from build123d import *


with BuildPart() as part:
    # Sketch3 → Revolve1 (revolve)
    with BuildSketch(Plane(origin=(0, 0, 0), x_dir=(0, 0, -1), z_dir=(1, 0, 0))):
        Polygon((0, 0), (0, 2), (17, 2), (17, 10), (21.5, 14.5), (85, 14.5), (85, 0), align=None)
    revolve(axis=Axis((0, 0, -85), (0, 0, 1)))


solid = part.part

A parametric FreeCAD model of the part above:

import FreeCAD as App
import Part
import Sketcher

V = App.Vector
Q = App.Units.Quantity

doc = App.newDocument("Part")
body = doc.addObject("PartDesign::Body", "Body")

sketch1 = body.newObject("Sketcher::SketchObject", "Sketch")
sketch1.AttachmentSupport = (doc.getObject("YZ_Plane"), [""])
sketch1.MapMode = "FlatFace"
sketch1.addGeometry([
    Part.LineSegment(V(2, 0, 0), V(0, 0, 0)),
    Part.LineSegment(V(0, 0, 0), V(0, -85, 0)),
    Part.LineSegment(V(0, -85, 0), V(14.5, -85, 0)),
    Part.LineSegment(V(14.5, -85, 0), V(14.5, -21.5, 0)),
    Part.LineSegment(V(14.5, -21.5, 0), V(10, -17, 0)),
    Part.LineSegment(V(10, -17, 0), V(2, -17, 0)),
    Part.LineSegment(V(2, -17, 0), V(2, 0, 0)),
], False)
sketch1.addConstraint([
    Sketcher.Constraint("Coincident", 0, 2, 1, 1),
    Sketcher.Constraint("Coincident", 1, 2, 2, 1),
    Sketcher.Constraint("Coincident", 2, 2, 3, 1),
    Sketcher.Constraint("Coincident", 3, 2, 4, 1),
    Sketcher.Constraint("Coincident", 4, 2, 5, 1),
    Sketcher.Constraint("Coincident", 5, 2, 6, 1),
    Sketcher.Constraint("Coincident", 6, 2, 0, 1),
    Sketcher.Constraint("Horizontal", 0),
    Sketcher.Constraint("Vertical", 1),
    Sketcher.Constraint("Horizontal", 2),
    Sketcher.Constraint("Vertical", 3),
    Sketcher.Constraint("Horizontal", 5),
    Sketcher.Constraint("Vertical", 6),
    Sketcher.Constraint("Coincident", 0, 2, -1, 1),
    Sketcher.Constraint("DistanceX", 0, 2, 0, 1, Q("2 mm")),
    Sketcher.Constraint("DistanceX", 5, 2, 5, 1, Q("8 mm")),
    Sketcher.Constraint("DistanceY", 1, 2, 1, 1, Q("85 mm")),
    Sketcher.Constraint("DistanceY", 6, 1, 6, 2, Q("17 mm")),
    Sketcher.Constraint("Angle", 4, Q("135 deg")),
    Sketcher.Constraint("DistanceX", 2, 1, 2, 2, Q("14.5 mm")),
])
revolution = body.newObject("PartDesign::Revolution", "Revolution")
revolution.Profile = sketch1
revolution.ReferenceAxis = (sketch1, ["V_Axis"])
revolution.Angle = 360

doc.recompute()
